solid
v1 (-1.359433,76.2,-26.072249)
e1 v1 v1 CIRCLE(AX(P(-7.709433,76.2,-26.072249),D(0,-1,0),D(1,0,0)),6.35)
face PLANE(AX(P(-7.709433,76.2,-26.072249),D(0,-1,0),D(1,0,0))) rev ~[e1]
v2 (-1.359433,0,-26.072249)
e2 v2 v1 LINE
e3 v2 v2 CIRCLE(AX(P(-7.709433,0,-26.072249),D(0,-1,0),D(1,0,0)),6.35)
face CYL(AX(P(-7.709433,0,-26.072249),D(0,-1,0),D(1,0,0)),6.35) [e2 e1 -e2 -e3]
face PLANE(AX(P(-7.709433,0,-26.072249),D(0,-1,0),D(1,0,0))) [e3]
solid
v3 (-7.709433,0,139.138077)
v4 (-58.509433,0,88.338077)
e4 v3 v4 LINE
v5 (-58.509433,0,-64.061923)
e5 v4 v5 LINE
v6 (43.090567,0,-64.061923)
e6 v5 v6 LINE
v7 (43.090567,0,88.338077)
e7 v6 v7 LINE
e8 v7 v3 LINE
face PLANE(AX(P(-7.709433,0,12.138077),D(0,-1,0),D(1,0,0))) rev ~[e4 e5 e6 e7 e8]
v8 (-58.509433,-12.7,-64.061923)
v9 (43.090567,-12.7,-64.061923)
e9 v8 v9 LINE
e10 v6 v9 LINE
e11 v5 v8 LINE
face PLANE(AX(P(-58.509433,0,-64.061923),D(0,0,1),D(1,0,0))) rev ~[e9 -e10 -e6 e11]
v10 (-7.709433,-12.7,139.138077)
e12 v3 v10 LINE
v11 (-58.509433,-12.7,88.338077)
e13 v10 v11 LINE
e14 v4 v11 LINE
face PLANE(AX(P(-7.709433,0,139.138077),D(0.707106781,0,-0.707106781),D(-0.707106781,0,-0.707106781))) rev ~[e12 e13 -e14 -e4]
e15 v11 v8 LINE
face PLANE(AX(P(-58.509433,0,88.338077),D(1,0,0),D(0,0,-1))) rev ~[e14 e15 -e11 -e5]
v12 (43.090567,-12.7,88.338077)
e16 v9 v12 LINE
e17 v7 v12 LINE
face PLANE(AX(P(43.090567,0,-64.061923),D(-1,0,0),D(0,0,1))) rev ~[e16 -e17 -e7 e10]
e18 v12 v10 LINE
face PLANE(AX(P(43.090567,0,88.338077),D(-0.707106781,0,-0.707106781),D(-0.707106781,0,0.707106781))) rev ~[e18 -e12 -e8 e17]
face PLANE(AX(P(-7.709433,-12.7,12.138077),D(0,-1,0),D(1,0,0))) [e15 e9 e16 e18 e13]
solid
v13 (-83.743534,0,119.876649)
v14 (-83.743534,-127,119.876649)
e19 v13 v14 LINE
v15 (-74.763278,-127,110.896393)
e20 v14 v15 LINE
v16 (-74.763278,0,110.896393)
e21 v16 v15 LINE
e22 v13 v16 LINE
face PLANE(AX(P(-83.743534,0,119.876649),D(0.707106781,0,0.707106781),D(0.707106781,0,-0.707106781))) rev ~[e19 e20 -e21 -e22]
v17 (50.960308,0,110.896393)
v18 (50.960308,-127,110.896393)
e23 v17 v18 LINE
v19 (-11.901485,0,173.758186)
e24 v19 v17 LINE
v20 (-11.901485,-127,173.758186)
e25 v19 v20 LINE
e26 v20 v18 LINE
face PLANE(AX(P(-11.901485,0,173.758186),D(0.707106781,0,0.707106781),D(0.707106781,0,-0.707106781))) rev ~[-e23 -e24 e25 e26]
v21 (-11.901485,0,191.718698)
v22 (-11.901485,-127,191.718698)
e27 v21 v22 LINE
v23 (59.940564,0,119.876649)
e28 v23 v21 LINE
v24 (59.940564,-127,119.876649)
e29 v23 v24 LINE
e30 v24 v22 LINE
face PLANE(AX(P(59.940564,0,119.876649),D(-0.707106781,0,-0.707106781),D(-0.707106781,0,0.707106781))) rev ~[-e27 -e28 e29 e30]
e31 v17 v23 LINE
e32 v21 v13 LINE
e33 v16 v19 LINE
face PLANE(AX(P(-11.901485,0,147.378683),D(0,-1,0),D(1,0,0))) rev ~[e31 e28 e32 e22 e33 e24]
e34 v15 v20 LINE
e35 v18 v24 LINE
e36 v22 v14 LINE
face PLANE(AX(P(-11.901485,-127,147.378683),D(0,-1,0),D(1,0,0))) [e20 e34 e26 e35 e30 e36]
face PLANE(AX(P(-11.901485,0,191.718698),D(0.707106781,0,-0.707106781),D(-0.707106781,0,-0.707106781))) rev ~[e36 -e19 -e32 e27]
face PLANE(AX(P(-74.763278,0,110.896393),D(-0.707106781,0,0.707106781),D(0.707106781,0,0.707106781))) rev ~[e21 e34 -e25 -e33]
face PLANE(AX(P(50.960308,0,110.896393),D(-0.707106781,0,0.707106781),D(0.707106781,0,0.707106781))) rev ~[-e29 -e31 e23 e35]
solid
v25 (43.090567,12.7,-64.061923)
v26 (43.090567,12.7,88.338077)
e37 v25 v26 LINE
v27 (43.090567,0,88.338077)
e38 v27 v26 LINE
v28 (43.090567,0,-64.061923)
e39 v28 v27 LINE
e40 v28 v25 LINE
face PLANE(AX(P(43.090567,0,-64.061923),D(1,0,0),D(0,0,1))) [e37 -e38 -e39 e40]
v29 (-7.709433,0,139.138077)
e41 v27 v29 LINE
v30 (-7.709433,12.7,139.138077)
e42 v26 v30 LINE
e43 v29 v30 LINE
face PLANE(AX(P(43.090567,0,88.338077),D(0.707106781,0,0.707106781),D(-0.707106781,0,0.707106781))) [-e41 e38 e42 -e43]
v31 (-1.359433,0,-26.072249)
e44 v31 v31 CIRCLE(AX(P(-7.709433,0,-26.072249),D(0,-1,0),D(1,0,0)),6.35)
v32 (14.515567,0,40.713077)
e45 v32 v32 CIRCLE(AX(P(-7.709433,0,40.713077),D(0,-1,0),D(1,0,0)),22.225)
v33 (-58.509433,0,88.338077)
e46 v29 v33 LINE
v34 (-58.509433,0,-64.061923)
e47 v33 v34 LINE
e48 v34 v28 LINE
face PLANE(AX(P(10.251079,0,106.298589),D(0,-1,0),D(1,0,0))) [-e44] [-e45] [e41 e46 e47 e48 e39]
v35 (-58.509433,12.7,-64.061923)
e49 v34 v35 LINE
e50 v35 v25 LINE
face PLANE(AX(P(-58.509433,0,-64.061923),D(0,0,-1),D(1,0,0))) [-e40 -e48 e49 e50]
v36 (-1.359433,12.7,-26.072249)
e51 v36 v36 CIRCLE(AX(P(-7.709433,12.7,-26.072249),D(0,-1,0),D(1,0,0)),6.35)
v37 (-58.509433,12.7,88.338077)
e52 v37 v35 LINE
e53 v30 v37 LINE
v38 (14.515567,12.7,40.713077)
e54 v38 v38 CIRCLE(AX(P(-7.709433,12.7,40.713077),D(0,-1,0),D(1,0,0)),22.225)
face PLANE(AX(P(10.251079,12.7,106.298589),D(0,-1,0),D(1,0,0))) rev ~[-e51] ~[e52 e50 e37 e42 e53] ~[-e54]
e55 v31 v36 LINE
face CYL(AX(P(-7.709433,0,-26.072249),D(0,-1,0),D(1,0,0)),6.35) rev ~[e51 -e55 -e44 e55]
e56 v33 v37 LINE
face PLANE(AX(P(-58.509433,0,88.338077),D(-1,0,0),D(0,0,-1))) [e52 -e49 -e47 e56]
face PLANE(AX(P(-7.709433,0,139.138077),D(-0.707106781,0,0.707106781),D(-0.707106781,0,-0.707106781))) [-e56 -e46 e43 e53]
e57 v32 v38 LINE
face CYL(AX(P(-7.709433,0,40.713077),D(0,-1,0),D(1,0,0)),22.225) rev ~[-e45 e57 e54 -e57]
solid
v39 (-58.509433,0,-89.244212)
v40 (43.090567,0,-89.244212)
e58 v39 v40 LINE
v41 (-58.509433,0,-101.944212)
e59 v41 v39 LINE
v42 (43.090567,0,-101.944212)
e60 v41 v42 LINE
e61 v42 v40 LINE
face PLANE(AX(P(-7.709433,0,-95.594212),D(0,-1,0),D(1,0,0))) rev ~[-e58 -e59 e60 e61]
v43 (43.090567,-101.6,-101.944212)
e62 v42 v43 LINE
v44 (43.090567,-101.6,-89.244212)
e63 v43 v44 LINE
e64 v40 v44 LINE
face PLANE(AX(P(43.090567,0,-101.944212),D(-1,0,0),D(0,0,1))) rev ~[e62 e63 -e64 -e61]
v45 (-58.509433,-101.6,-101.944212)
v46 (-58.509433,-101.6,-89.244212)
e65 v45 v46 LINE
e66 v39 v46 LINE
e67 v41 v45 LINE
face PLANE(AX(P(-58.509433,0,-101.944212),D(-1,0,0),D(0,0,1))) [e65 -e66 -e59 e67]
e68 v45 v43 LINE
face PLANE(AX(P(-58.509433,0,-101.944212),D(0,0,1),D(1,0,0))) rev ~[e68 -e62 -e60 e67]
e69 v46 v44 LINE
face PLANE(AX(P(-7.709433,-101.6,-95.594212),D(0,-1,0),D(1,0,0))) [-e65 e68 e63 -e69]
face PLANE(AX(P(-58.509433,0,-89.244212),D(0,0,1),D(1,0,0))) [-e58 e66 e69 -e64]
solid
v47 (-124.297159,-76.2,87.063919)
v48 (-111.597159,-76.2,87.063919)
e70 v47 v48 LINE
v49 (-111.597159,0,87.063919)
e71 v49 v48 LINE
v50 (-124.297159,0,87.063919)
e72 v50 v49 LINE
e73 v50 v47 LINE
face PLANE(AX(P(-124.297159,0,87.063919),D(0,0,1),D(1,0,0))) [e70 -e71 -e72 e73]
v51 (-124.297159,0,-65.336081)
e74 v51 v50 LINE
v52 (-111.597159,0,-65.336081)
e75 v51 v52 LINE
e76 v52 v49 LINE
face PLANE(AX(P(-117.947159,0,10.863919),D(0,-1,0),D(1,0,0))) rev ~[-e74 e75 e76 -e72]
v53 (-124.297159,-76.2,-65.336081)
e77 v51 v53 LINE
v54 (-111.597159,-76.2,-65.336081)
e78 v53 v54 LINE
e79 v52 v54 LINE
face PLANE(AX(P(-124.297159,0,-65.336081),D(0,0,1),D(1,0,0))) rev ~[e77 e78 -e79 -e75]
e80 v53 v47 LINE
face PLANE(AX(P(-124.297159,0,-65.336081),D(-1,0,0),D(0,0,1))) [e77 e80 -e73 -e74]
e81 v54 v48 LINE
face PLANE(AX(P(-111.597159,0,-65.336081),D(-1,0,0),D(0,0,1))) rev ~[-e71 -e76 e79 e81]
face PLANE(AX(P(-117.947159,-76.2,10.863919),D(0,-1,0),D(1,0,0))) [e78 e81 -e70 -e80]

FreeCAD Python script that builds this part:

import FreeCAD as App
import Part
import Sketcher
from FreeCAD import Vector
Q = App.Units.Quantity


def add_polygon(sketch, points):
    """Adds a closed chain of lines whose ends are joined by coincident constraints."""
    first, n = sketch.GeometryCount, len(points)
    for a, b in zip(points, points[1:] + points[:1]):
        sketch.addGeometry(Part.LineSegment(App.Vector(*a, 0), App.Vector(*b, 0)), False)
    for i in range(n):
        sketch.addConstraint(Sketcher.Constraint("Coincident", first + i, 2, first + (i + 1) % n, 1))

doc = App.newDocument("Part")
body = doc.addObject("PartDesign::Body", "Body")

sketch1 = body.newObject("Sketcher::SketchObject", "Sketch")
sketch1.AttachmentSupport = (doc.getObject("XZ_Plane"), [""])
sketch1.MapMode = "FlatFace"
add_polygon(sketch1, [(-59, -89), (-59, -102), (43, -102), (43, -89)])
sketch1.addConstraint([
    Sketcher.Constraint("Vertical", 0),
    Sketcher.Constraint("Horizontal", 1),
    Sketcher.Constraint("Vertical", 2),
    Sketcher.Constraint("Horizontal", 3),
    Sketcher.Constraint("DistanceX", 1, 1, 1, 2, Q("4 in")),
    Sketcher.Constraint("DistanceY", 0, 2, 0, 1, Q("0.5 in")),
    Sketcher.Constraint("DistanceY", 0, 2, -1, 1, Q("101.944212 mm")),
    Sketcher.Constraint("DistanceX", 0, 2, -1, 1, Q("58.509433 mm")),
])
pad1 = body.newObject("PartDesign::Pad", "Pad")
pad1.Profile = sketch1
pad1.Length = Q("4 in")
body2 = doc.addObject("PartDesign::Body", "Body001")

sketch2 = body2.newObject("Sketcher::SketchObject", "Sketch001")
sketch2.AttachmentSupport = (doc.getObject("XZ_Plane001"), [""])
sketch2.MapMode = "FlatFace"
add_polygon(sketch2, [(-124, 87), (-124, -65), (-112, -65), (-112, 87)])
sketch2.addConstraint([
    Sketcher.Constraint("Vertical", 0),
    Sketcher.Constraint("Horizontal", 1),
    Sketcher.Constraint("Vertical", 2),
    Sketcher.Constraint("Horizontal", 3),
    Sketcher.Constraint("DistanceY", 0, 2, 0, 1, Q("6 in")),
    Sketcher.Constraint("DistanceX", 1, 1, 1, 2, Q("0.5 in")),
    Sketcher.Constraint("DistanceX", 0, 2, -1, 1, Q("124.297159 mm")),
    Sketcher.Constraint("DistanceY", 0, 2, -1, 1, Q("65.336081 mm")),
])
pad2 = body2.newObject("PartDesign::Pad", "Pad001")
pad2.Profile = sketch2
pad2.Length = Q("3 in")
body3 = doc.addObject("PartDesign::Body", "Body002")

sketch3 = body3.newObject("Sketcher::SketchObject", "Sketch002")
sketch3.AttachmentSupport = (doc.getObject("XZ_Plane002"), [""])
sketch3.MapMode = "FlatFace"
add_polygon(sketch3, [(-59, 88), (-59, -64), (43, -64), (43, 88), (-8, 139)])
sketch3.addConstraint([
    Sketcher.Constraint("Vertical", 0),
    Sketcher.Constraint("Horizontal", 1),
    Sketcher.Constraint("Vertical", 2),
    Sketcher.Constraint("Perpendicular", 3, 4),
    Sketcher.Constraint("Horizontal", 2, 2, 4, 2),
    Sketcher.Constraint("Equal", 3, 4),
    Sketcher.Constraint("DistanceX", 1, 1, 1, 2, Q("4 in")),
    Sketcher.Constraint("DistanceY", 0, 2, 0, 1, Q("6 in")),
    Sketcher.Constraint("DistanceX", 0, 2, -1, 1, Q("58.509433 mm")),
    Sketcher.Constraint("DistanceY", 0, 2, -1, 1, Q("64.061923 mm")),
])
pad3 = body3.newObject("PartDesign::Pad", "Pad002")
pad3.Profile = sketch3
pad3.Length = Q("0.5 in")
body4 = doc.addObject("PartDesign::Body", "Body003")

sketch4 = body4.newObject("Sketcher::SketchObject", "Sketch003")
sketch4.AttachmentSupport = (doc.getObject("XZ_Plane003"), [""])
sketch4.MapMode = "FlatFace"
add_polygon(sketch4, [(43, 88), (-8, 139), (-59, 88), (-59, -64), (43, -64)])
sketch4.addGeometry(Part.Circle(Vector(-8, -26, 0), Vector(0, 0, 1), 6), False)
sketch4.addGeometry(Part.Circle(Vector(-8, 41, 0), Vector(0, 0, 1), 22), False)
sketch4.addConstraint([
    Sketcher.Constraint("Vertical", 2),
    Sketcher.Constraint("Horizontal", 3),
    Sketcher.Constraint("Vertical", 4),
    Sketcher.Constraint("Perpendicular", 0, 1),
    Sketcher.Constraint("Horizontal", 1, 2, 4, 2),
    Sketcher.Constraint("Vertical", 5, 3, 6, 3),
    Sketcher.Constraint("Vertical", 6, 3, 0, 2),
    Sketcher.Constraint("Equal", 0, 1),
    Sketcher.Constraint("Diameter", 5, Q("0.5 in")),
    Sketcher.Constraint("Diameter", 6, Q("1.75 in")),
    Sketcher.Constraint("DistanceX", 3, 1, 3, 2, Q("4 in")),
    Sketcher.Constraint("DistanceY", 2, 2, 2, 1, Q("6 in")),
    Sketcher.Constraint("DistanceY", 6, 3, 0, 2, Q("3.875 in")),
    Sketcher.Constraint("DistanceY", 5, 3, -1, 1, Q("26.072249 mm")),
    Sketcher.Constraint("DistanceX", 5, 3, -1, 1, Q("7.709433 mm")),
    Sketcher.Constraint("DistanceY", -1, 1, 6, 3, Q("40.713077 mm")),
])
pad4 = body4.newObject("PartDesign::Pad", "Pad003")
pad4.Profile = sketch4
pad4.Length = Q("0.5 in")
pad4.Reversed = True
body5 = doc.addObject("PartDesign::Body", "Body004")

sketch5 = body5.newObject("Sketcher::SketchObject", "Sketch004")
sketch5.AttachmentSupport = (doc.getObject("XZ_Plane004"), [""])
sketch5.MapMode = "FlatFace"
add_polygon(sketch5, [(-12, 192), (-84, 120), (-75, 111), (-12, 174), (51, 111), (60, 120)])
sketch5.addConstraint([
    Sketcher.Constraint("Perpendicular", 0, 1),
    Sketcher.Constraint("Perpendicular", 1, 2),
    Sketcher.Constraint("Perpendicular", 2, 3),
    Sketcher.Constraint("Perpendicular", 3, 4),
    Sketcher.Constraint("Perpendicular", 4, 5),
    Sketcher.Constraint("Horizontal", 1, 2, 3, 2),
    Sketcher.Constraint("Horizontal", 0, 2, 4, 2),
    Sketcher.Constraint("Vertical", 2, 2, 5, 2),
    Sketcher.Constraint("Distance", 0, Q("4 in")),
    Sketcher.Constraint("Distance", 1, Q("0.5 in")),
    Sketcher.Constraint("DistanceY", -1, 1, 0, 2, Q("119.876649 mm")),
    Sketcher.Constraint("DistanceX", 1, 2, -1, 1, Q("74.763278 mm")),
])
pad5 = body5.newObject("PartDesign::Pad", "Pad004")
pad5.Profile = sketch5
pad5.Length = Q("5 in")
body6 = doc.addObject("PartDesign::Body", "Body005")

sketch6 = body6.newObject("Sketcher::SketchObject", "Sketch005")
sketch6.AttachmentSupport = (doc.getObject("XZ_Plane005"), [""])
sketch6.MapMode = "FlatFace"
sketch6.addGeometry(Part.Circle(Vector(-8, -26, 0), Vector(0, 0, 1), 6), False)
sketch6.addConstraint([
    Sketcher.Constraint("Diameter", 0, Q("0.5 in")),
    Sketcher.Constraint("DistanceY", 0, 3, -1, 1, Q("26.072249 mm")),
    Sketcher.Constraint("DistanceX", 0, 3, -1, 1, Q("7.709433 mm")),
])
pad6 = body6.newObject("PartDesign::Pad", "Pad005")
pad6.Profile = sketch6
pad6.Length = Q("3 in")
pad6.Reversed = True

doc.recompute()
